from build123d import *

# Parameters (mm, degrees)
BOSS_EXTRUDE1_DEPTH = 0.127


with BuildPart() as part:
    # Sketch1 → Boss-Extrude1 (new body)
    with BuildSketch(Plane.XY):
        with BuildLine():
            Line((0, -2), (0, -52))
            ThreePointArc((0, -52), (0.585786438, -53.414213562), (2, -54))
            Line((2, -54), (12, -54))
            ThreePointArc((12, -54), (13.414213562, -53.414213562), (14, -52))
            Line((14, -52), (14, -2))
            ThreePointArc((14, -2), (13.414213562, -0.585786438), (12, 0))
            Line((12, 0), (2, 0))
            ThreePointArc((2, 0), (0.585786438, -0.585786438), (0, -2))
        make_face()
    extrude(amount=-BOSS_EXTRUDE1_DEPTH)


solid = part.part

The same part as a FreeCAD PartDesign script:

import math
import FreeCAD as App
import Part
import Sketcher

V = App.Vector

doc = App.newDocument("Part")
params = doc.addObject("Spreadsheet::Sheet", "Params")
for row, (alias, value) in enumerate([
    ("sketch1_radius", "2 mm"),
    ("sketch1_width", "10 mm"),
    ("sketch1_height", "50 mm"),
    ("pad1_length", "0.127 mm"),
], start=1):
    params.set(f"A{row}", alias)
    params.set(f"B{row}", "=" + value)
    params.setAlias(f"B{row}", alias)

body = doc.addObject("PartDesign::Body", "Body")

# Sketch on XY plane
sketch1 = doc.addObject("Sketcher::SketchObject", "Sketch")
body.addObject(sketch1)
sketch1.AttachmentSupport = (doc.XY_Plane, [""])
sketch1.MapMode = "FlatFace"
sketch1.addGeometry([
    Part.LineSegment(V(0, -2, 0), V(0, -52, 0)),  # 0
    Part.ArcOfCircle(Part.Circle(V(2, -52, 0), V(0, 0, 1), 2), math.radians(-180), math.radians(-90)),  # 1
    Part.LineSegment(V(2, -54, 0), V(12, -54, 0)),  # 2
    Part.ArcOfCircle(Part.Circle(V(12, -52, 0), V(0, 0, 1), 2), math.radians(-90), math.radians(0)),  # 3
    Part.LineSegment(V(14, -52, 0), V(14, -2, 0)),  # 4
    Part.ArcOfCircle(Part.Circle(V(12, -2, 0), V(0, 0, 1), 2), math.radians(0), math.radians(90)),  # 5
    Part.LineSegment(V(12, 0, 0), V(2, 0, 0)),  # 6
    Part.ArcOfCircle(Part.Circle(V(2, -2, 0), V(0, 0, 1), 2), math.radians(90), math.radians(180)),  # 7
], False)
sketch1.addConstraint([
    Sketcher.Constraint("Tangent", 0, 2, 1, 1),
    Sketcher.Constraint("Tangent", 1, 2, 2, 1),
    Sketcher.Constraint("Tangent", 2, 2, 3, 1),
    Sketcher.Constraint("Tangent", 3, 2, 4, 1),
    Sketcher.Constraint("Tangent", 4, 2, 5, 1),
    Sketcher.Constraint("Tangent", 5, 2, 6, 1),
    Sketcher.Constraint("Tangent", 6, 2, 7, 1),
    Sketcher.Constraint("Tangent", 7, 2, 0, 1),
    Sketcher.Constraint("Vertical", 0),
    Sketcher.Constraint("Horizontal", 2),
    Sketcher.Constraint("Vertical", 4),
    Sketcher.Constraint("Horizontal", 6),
    Sketcher.Constraint("Equal", 1, 3),
    Sketcher.Constraint("Equal", 3, 5),
    Sketcher.Constraint("Equal", 5, 7),
    Sketcher.Constraint("PointOnObject", 0, 2, -2),
    Sketcher.Constraint("PointOnObject", 5, 2, -1),
    Sketcher.Constraint("Radius", 1, 2.0),
    Sketcher.Constraint("DistanceX", 2, 1, 2, 2, 10.0),
    Sketcher.Constraint("DistanceY", 0, 2, 0, 1, 50.0),
])
sketch1.setExpression("Constraints[17]", "Params.sketch1_radius")
sketch1.setExpression("Constraints[18]", "Params.sketch1_width")
sketch1.setExpression("Constraints[19]", "Params.sketch1_height")
pad1 = doc.addObject("PartDesign::Pad", "Pad")
body.addObject(pad1)
pad1.Profile = sketch1
pad1.setExpression("Length", "Params.pad1_length")
pad1.Reversed = True

doc.recompute()
